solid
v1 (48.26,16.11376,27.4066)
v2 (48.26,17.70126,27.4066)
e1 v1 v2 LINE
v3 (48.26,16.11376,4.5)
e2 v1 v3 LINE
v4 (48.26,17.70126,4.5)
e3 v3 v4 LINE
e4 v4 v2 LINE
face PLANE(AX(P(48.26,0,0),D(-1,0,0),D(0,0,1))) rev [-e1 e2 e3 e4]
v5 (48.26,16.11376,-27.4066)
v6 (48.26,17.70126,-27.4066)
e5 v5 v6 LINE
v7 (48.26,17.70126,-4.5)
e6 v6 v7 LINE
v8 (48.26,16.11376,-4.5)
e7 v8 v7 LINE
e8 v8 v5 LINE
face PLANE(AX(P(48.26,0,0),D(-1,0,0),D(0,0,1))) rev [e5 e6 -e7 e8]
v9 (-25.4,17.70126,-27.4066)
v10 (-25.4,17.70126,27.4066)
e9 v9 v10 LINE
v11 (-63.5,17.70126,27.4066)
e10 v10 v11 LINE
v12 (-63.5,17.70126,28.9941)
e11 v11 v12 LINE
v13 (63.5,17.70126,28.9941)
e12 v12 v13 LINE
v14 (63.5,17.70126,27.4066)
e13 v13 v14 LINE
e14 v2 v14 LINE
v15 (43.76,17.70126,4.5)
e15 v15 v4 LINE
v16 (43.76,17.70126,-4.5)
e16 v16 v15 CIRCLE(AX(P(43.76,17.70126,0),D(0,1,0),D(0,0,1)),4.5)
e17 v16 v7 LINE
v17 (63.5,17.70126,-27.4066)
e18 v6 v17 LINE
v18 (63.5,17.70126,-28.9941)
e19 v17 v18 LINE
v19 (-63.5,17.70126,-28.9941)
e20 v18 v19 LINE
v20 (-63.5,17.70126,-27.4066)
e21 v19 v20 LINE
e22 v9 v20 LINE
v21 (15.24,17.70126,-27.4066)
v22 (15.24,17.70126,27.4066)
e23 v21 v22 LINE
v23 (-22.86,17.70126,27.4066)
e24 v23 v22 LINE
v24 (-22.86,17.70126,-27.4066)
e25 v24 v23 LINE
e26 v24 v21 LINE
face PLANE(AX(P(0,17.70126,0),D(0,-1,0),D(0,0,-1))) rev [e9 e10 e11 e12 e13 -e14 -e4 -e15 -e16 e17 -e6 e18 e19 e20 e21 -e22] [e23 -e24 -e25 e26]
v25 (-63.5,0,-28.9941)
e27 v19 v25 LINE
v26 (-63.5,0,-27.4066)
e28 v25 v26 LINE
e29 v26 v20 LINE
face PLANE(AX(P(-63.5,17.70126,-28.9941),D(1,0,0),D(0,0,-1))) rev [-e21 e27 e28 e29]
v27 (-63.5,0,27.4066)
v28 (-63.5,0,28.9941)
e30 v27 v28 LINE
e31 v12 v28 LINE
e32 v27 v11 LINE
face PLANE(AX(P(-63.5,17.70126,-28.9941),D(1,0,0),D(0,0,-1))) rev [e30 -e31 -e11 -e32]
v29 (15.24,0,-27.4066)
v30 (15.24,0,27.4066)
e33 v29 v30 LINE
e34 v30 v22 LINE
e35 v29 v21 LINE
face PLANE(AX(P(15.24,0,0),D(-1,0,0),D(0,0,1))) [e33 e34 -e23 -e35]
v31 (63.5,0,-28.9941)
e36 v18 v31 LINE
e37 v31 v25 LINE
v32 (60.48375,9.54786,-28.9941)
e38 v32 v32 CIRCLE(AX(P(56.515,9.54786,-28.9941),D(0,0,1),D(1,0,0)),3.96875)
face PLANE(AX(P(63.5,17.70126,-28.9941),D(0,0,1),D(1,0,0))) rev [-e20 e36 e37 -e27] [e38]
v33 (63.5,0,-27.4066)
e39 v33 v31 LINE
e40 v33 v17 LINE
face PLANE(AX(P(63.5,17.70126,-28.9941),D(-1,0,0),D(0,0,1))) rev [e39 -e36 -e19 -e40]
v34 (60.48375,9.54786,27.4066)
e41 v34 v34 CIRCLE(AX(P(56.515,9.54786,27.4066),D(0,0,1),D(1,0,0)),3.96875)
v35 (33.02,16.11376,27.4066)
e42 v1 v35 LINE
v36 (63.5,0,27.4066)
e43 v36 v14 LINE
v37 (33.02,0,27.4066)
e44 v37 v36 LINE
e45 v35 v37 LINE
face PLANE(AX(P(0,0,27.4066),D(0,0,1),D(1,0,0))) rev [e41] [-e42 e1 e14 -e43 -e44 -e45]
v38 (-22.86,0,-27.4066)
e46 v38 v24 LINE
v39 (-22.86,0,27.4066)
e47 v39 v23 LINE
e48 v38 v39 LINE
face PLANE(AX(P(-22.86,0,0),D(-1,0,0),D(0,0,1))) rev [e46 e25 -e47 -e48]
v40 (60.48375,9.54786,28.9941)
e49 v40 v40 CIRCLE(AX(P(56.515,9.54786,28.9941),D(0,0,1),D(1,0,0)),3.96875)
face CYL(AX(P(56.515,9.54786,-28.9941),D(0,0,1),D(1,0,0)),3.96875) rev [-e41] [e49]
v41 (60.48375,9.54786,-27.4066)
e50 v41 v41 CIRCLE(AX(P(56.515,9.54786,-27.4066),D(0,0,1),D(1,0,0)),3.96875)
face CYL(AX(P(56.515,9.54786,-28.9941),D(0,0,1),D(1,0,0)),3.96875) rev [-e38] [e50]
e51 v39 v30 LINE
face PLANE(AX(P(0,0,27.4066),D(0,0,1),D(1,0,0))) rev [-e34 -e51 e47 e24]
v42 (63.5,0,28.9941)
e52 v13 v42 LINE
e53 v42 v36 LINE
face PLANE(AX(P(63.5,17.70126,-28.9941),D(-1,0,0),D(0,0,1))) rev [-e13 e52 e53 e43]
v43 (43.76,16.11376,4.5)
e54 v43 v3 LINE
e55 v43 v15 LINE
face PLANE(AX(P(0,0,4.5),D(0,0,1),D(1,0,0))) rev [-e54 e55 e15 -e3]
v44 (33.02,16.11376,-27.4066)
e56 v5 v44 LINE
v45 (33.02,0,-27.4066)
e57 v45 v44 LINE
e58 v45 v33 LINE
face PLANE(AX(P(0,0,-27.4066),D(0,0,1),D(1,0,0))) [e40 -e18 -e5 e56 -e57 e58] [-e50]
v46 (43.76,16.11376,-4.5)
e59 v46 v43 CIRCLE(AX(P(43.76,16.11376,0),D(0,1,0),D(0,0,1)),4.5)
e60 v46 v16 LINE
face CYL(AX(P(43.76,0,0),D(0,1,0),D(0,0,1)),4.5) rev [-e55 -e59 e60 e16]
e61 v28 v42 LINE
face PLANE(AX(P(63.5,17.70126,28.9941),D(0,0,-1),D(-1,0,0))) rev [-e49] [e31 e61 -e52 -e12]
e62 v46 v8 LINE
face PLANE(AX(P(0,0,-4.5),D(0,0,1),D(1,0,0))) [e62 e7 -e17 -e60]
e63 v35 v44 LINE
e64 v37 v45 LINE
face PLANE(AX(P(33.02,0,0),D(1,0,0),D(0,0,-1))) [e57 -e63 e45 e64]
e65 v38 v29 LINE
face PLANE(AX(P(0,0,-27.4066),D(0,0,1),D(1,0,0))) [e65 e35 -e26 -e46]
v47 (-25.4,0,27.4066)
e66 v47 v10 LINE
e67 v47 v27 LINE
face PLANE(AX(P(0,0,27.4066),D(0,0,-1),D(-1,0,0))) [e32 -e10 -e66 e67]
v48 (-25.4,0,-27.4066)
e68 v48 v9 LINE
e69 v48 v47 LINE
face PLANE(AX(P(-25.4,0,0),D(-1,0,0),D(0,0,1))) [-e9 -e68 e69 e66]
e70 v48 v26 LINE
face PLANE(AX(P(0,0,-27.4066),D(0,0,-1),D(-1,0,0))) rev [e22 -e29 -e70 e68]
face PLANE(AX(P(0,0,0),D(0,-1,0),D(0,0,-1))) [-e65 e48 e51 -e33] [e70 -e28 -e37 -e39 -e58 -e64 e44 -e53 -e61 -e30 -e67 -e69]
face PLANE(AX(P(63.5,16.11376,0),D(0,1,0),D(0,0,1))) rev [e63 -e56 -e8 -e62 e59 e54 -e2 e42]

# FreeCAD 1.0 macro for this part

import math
import FreeCAD as App
import Part
import Sketcher

V = App.Vector
Q = App.Units.Quantity

doc = App.newDocument("Part")
body = doc.addObject("PartDesign::Body", "Body")

# Sketch on XZ plane
sketch1 = body.newObject("Sketcher::SketchObject", "Sketch")
sketch1.AttachmentSupport = (doc.getObject("XZ_Plane"), [""])
sketch1.MapMode = "FlatFace"
sketch1.addGeometry(Part.LineSegment(V(-64, -29, 0), V(-64, 29, 0)), False)
sketch1.addGeometry(Part.LineSegment(V(-64, 29, 0), V(64, 29, 0)), False)
sketch1.addGeometry(Part.LineSegment(V(64, 29, 0), V(64, -29, 0)), False)
sketch1.addGeometry(Part.LineSegment(V(64, -29, 0), V(-64, -29, 0)), False)
sketch1.addConstraint(Sketcher.Constraint("Coincident", 0, 2, 1, 1))
sketch1.addConstraint(Sketcher.Constraint("Coincident", 1, 2, 2, 1))
sketch1.addConstraint(Sketcher.Constraint("Coincident", 2, 2, 3, 1))
sketch1.addConstraint(Sketcher.Constraint("Coincident", 3, 2, 0, 1))
sketch1.addConstraint(Sketcher.Constraint("Vertical", 0))
sketch1.addConstraint(Sketcher.Constraint("Horizontal", 1))
sketch1.addConstraint(Sketcher.Constraint("Vertical", 2))
sketch1.addConstraint(Sketcher.Constraint("Horizontal", 3))
sketch1.addConstraint(Sketcher.Constraint("Symmetric", 0, 2, 2, 2, -1, 1))
sketch1.addConstraint(Sketcher.Constraint("DistanceX", 1, 1, 1, 2, Q("5 in")))
sketch1.addConstraint(Sketcher.Constraint("DistanceY", 0, 1, 0, 2, Q("2.283 in")))
pad1 = body.newObject("PartDesign::Pad", "Pad")
pad1.Profile = sketch1
pad1.Length = Q("0.6969 in")
pad1.Reversed = True

# Sketch on XZ plane
sketch2 = body.newObject("Sketcher::SketchObject", "Sketch001")
sketch2.AttachmentSupport = (doc.getObject("XZ_Plane"), [""])
sketch2.MapMode = "FlatFace"
sketch2.AttachmentOffset = App.Placement(V(0, 0, -0.6969 * 25.4), App.Rotation())
sketch2.addGeometry(Part.LineSegment(V(48, -27, 0), V(48, 27, 0)), False)
sketch2.addGeometry(Part.LineSegment(V(48, 27, 0), V(64, 27, 0)), False)
sketch2.addGeometry(Part.LineSegment(V(64, 27, 0), V(64, -27, 0)), False)
sketch2.addGeometry(Part.LineSegment(V(64, -27, 0), V(48, -27, 0)), False)
sketch2.addConstraint(Sketcher.Constraint("Coincident", 0, 2, 1, 1))
sketch2.addConstraint(Sketcher.Constraint("Coincident", 1, 2, 2, 1))
sketch2.addConstraint(Sketcher.Constraint("Coincident", 2, 2, 3, 1))
sketch2.addConstraint(Sketcher.Constraint("Coincident", 3, 2, 0, 1))
sketch2.addConstraint(Sketcher.Constraint("Vertical", 0))
sketch2.addConstraint(Sketcher.Constraint("Horizontal", 1))
sketch2.addConstraint(Sketcher.Constraint("Vertical", 2))
sketch2.addConstraint(Sketcher.Constraint("Horizontal", 3))
sketch2.addConstraint(Sketcher.Constraint("DistanceX", 1, 1, 1, 2, Q("0.6 in")))
sketch2.addConstraint(Sketcher.Constraint("DistanceX", -1, 1, 0, 2, Q("1.9 in")))
sketch2.addConstraint(Sketcher.Constraint("DistanceY", 0, 1, 0, 2, Q("2.158 in")))
sketch2.addConstraint(Sketcher.Constraint("DistanceY", -1, 1, 0, 2, Q("1.079 in")))
pocket1 = body.newObject("PartDesign::Pocket", "Pocket")
pocket1.Profile = sketch2
pocket1.Type = "ThroughAll"
pocket1.Reversed = True

# Sketch on XY plane
sketch3 = body.newObject("Sketcher::SketchObject", "Sketch002")
sketch3.AttachmentSupport = (doc.getObject("XY_Plane"), [""])
sketch3.MapMode = "FlatFace"
sketch3.AttachmentOffset = App.Placement(V(0, 0, -1.079 * 25.4), App.Rotation())
sketch3.addGeometry(Part.Circle(V(56.5, 9.5, 0), V(0, 0, 1), 4), False)
sketch3.addConstraint(Sketcher.Constraint("Diameter", 0, Q("0.3125 in")))
sketch3.addConstraint(Sketcher.Constraint("DistanceX", -1, 1, 0, 3, Q("2.225 in")))
sketch3.addConstraint(Sketcher.Constraint("DistanceY", -1, 1, 0, 3, Q("0.3759 in")))
pocket2 = body.newObject("PartDesign::Pocket", "Pocket001")
pocket2.Profile = sketch3
pocket2.Type = "ThroughAll"
pocket2.Midplane = True

# Sketch on YZ plane
sketch4 = body.newObject("Sketcher::SketchObject", "Sketch003")
sketch4.AttachmentSupport = (doc.getObject("YZ_Plane"), [""])
sketch4.MapMode = "FlatFace"
sketch4.AttachmentOffset = App.Placement(V(0, 0, 1.9 * 25.4), App.Rotation())
sketch4.addGeometry(Part.LineSegment(V(16, 27, 0), V(0, 27, 0)), False)
sketch4.addGeometry(Part.LineSegment(V(0, 27, 0), V(0, -27, 0)), False)
sketch4.addGeometry(Part.LineSegment(V(0, -27, 0), V(16, -27, 0)), False)
sketch4.addGeometry(Part.LineSegment(V(16, -27, 0), V(16, 27, 0)), False)
sketch4.addConstraint(Sketcher.Constraint("Coincident", 0, 2, 1, 1))
sketch4.addConstraint(Sketcher.Constraint("Coincident", 1, 2, 2, 1))
sketch4.addConstraint(Sketcher.Constraint("Coincident", 2, 2, 3, 1))
sketch4.addConstraint(Sketcher.Constraint("Coincident", 3, 2, 0, 1))
sketch4.addConstraint(Sketcher.Constraint("Horizontal", 0))
sketch4.addConstraint(Sketcher.Constraint("Vertical", 1))
sketch4.addConstraint(Sketcher.Constraint("Horizontal", 2))
sketch4.addConstraint(Sketcher.Constraint("Vertical", 3))
sketch4.addConstraint(Sketcher.Constraint("Symmetric", 0, 2, 1, 2, -1, 1))
sketch4.addConstraint(Sketcher.Constraint("DistanceY", 1, 2, 1, 1, Q("2.158 in")))
sketch4.addConstraint(Sketcher.Constraint("DistanceX", 0, 2, 0, 1, Q("0.6344 in")))
pocket3 = body.newObject("PartDesign::Pocket", "Pocket002")
pocket3.Profile = sketch4
pocket3.Type = "TwoLengths"
pocket3.Length = 117.808776
pocket3.Length2 = Q("0.6 in")
pocket3.Reversed = True

# Sketch on XZ plane
sketch5 = body.newObject("Sketcher::SketchObject", "Sketch004")
sketch5.AttachmentSupport = (doc.getObject("XZ_Plane"), [""])
sketch5.MapMode = "FlatFace"
sketch5.AttachmentOffset = App.Placement(V(0, 0, -0.6969 * 25.4), App.Rotation())
sketch5.addGeometry(Part.LineSegment(V(48.3, -4.5, 0), V(43.8, -4.5, 0)), False)
sketch5.addGeometry(Part.ArcOfCircle(Part.Circle(V(43.8, 0, 0), V(0, 0, 1), 4.5), math.radians(-180), math.radians(-90)), False)
sketch5.addGeometry(Part.ArcOfCircle(Part.Circle(V(43.8, 0, 0), V(0, 0, 1), 4.5), math.radians(90), math.radians(180)), False)
sketch5.addGeometry(Part.LineSegment(V(43.8, 4.5, 0), V(48.3, 4.5, 0)), False)
sketch5.addGeometry(Part.LineSegment(V(48.3, 4.5, 0), V(48.3, -4.5, 0)), False)
sketch5.addConstraint(Sketcher.Constraint("Tangent", 0, 2, 1, 2))
sketch5.addConstraint(Sketcher.Constraint("Tangent", 1, 1, 2, 2))
sketch5.addConstraint(Sketcher.Constraint("Tangent", 2, 1, 3, 1))
sketch5.addConstraint(Sketcher.Constraint("Coincident", 3, 2, 4, 1))
sketch5.addConstraint(Sketcher.Constraint("Coincident", 4, 2, 0, 1))
sketch5.addConstraint(Sketcher.Constraint("Horizontal", 0))
sketch5.addConstraint(Sketcher.Constraint("Horizontal", 3))
sketch5.addConstraint(Sketcher.Constraint("Vertical", 4))
sketch5.addConstraint(Sketcher.Constraint("Equal", 1, 2))
sketch5.addConstraint(Sketcher.Constraint("PointOnObject", 1, 3, -1))
sketch5.addConstraint(Sketcher.Constraint("PointOnObject", 1, 1, -1))
sketch5.addConstraint(Sketcher.Constraint("DistanceX", -1, 1, 3, 2, Q("1.9 in")))
sketch5.addConstraint(Sketcher.Constraint("Radius", 1, Q("4.5 mm")))
sketch5.addConstraint(Sketcher.Constraint("DistanceX", 0, 2, 0, 1, Q("4.5 mm")))
pocket4 = body.newObject("PartDesign::Pocket", "Pocket003")
pocket4.Profile = sketch5
pocket4.Type = "ThroughAll"
pocket4.Reversed = True

# Sketch on XZ plane
sketch6 = body.newObject("Sketcher::SketchObject", "Sketch005")
sketch6.AttachmentSupport = (doc.getObject("XZ_Plane"), [""])
sketch6.MapMode = "FlatFace"
sketch6.AttachmentOffset = App.Placement(V(0, 0, -0.6969 * 25.4), App.Rotation())
sketch6.addGeometry(Part.LineSegment(V(-64, -27, 0), V(-64, 27, 0)), False)
sketch6.addGeometry(Part.LineSegment(V(-64, 27, 0), V(-25, 27, 0)), False)
sketch6.addGeometry(Part.LineSegment(V(-25, 27, 0), V(-25, -27, 0)), False)
sketch6.addGeometry(Part.LineSegment(V(-25, -27, 0), V(-64, -27, 0)), False)
sketch6.addConstraint(Sketcher.Constraint("Coincident", 0, 2, 1, 1))
sketch6.addConstraint(Sketcher.Constraint("Coincident", 1, 2, 2, 1))
sketch6.addConstraint(Sketcher.Constraint("Coincident", 2, 2, 3, 1))
sketch6.addConstraint(Sketcher.Constraint("Coincident", 3, 2, 0, 1))
sketch6.addConstraint(Sketcher.Constraint("Vertical", 0))
sketch6.addConstraint(Sketcher.Constraint("Horizontal", 1))
sketch6.addConstraint(Sketcher.Constraint("Vertical", 2))
sketch6.addConstraint(Sketcher.Constraint("Horizontal", 3))
sketch6.addConstraint(Sketcher.Constraint("DistanceX", 1, 1, 1, 2, Q("1.5 in")))
sketch6.addConstraint(Sketcher.Constraint("DistanceX", 1, 2, -1, 1, Q("1 in")))
sketch6.addConstraint(Sketcher.Constraint("DistanceY", 0, 1, 0, 2, Q("2.158 in")))
sketch6.addConstraint(Sketcher.Constraint("DistanceY", -1, 1, 0, 2, Q("1.079 in")))
pocket5 = body.newObject("PartDesign::Pocket", "Pocket004")
pocket5.Profile = sketch6
pocket5.Type = "ThroughAll"
pocket5.Reversed = True

# Sketch on XZ plane
sketch7 = body.newObject("Sketcher::SketchObject", "Sketch006")
sketch7.AttachmentSupport = (doc.getObject("XZ_Plane"), [""])
sketch7.MapMode = "FlatFace"
sketch7.AttachmentOffset = App.Placement(V(0, 0, -0.6969 * 25.4), App.Rotation())
sketch7.addGeometry(Part.LineSegment(V(-23, -27, 0), V(-23, 27, 0)), False)
sketch7.addGeometry(Part.LineSegment(V(-23, 27, 0), V(15, 27, 0)), False)
sketch7.addGeometry(Part.LineSegment(V(15, 27, 0), V(15, -27, 0)), False)
sketch7.addGeometry(Part.LineSegment(V(15, -27, 0), V(-23, -27, 0)), False)
sketch7.addConstraint(Sketcher.Constraint("Coincident", 0, 2, 1, 1))
sketch7.addConstraint(Sketcher.Constraint("Coincident", 1, 2, 2, 1))
sketch7.addConstraint(Sketcher.Constraint("Coincident", 2, 2, 3, 1))
sketch7.addConstraint(Sketcher.Constraint("Coincident", 3, 2, 0, 1))
sketch7.addConstraint(Sketcher.Constraint("Vertical", 0))
sketch7.addConstraint(Sketcher.Constraint("Horizontal", 1))
sketch7.addConstraint(Sketcher.Constraint("Vertical", 2))
sketch7.addConstraint(Sketcher.Constraint("Horizontal", 3))
sketch7.addConstraint(Sketcher.Constraint("DistanceX", 1, 1, 1, 2, Q("1.5 in")))
sketch7.addConstraint(Sketcher.Constraint("DistanceX", 0, 2, -1, 1, Q("0.9 in")))
sketch7.addConstraint(Sketcher.Constraint("DistanceY", 0, 1, 0, 2, Q("2.158 in")))
sketch7.addConstraint(Sketcher.Constraint("DistanceY", -1, 1, 0, 2, Q("1.079 in")))
pocket6 = body.newObject("PartDesign::Pocket", "Pocket005")
pocket6.Profile = sketch7
pocket6.Type = "ThroughAll"
pocket6.Reversed = True

doc.recompute()
